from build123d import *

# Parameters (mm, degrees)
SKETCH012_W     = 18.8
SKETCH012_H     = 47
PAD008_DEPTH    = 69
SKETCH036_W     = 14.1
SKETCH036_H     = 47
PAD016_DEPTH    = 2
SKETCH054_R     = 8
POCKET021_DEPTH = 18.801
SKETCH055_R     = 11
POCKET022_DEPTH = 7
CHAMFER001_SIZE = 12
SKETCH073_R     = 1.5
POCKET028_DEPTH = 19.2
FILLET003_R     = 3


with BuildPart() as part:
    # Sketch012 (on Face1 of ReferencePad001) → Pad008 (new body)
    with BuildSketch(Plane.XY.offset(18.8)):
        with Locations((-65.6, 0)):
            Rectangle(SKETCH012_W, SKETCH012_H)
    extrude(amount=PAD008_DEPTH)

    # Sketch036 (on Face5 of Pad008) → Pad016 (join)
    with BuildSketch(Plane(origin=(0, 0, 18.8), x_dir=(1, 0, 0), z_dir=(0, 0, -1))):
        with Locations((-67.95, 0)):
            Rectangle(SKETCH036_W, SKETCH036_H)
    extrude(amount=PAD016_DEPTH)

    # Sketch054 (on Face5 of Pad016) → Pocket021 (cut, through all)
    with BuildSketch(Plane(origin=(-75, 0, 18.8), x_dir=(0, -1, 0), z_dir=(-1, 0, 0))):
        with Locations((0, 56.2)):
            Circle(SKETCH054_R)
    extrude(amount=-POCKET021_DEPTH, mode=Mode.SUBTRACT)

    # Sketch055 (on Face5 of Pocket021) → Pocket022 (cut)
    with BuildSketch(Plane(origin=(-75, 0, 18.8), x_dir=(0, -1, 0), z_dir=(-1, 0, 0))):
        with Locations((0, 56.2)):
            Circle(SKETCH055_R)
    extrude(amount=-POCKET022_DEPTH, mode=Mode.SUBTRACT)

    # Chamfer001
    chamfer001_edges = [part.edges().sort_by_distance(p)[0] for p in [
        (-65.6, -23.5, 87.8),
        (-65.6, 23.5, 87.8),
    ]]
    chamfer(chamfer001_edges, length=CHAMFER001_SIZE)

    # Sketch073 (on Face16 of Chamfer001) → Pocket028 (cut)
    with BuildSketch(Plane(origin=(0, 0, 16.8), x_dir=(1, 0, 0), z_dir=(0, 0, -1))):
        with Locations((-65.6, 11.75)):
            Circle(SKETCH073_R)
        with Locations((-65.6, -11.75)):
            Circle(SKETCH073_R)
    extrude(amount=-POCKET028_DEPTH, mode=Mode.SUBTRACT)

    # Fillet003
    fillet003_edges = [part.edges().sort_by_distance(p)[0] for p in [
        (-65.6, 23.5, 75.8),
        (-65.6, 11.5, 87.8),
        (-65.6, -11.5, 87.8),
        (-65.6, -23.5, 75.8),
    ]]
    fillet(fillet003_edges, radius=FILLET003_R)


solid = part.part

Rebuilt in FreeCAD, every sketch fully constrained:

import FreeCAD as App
import Part
import Sketcher

V = App.Vector


def edges_at(feature, points):
    """Names of the edges that pass closest to the given points."""
    edges = feature.Shape.Edges
    near = lambda p: min(range(len(edges)), key=lambda i: edges[i].distToShape(Part.Vertex(*p))[0])
    return sorted({f"Edge{near(p) + 1}" for p in points})

doc = App.newDocument("Part")
body = doc.addObject("PartDesign::Body", "Body")

# Sketch on XY plane
sketch1 = body.newObject("Sketcher::SketchObject", "Sketch")
sketch1.AttachmentSupport = (doc.getObject("XY_Plane"), [""])
sketch1.MapMode = "FlatFace"
sketch1.AttachmentOffset = App.Placement(V(0, 0, 18.8), App.Rotation())
sketch1.addGeometry([
    Part.LineSegment(V(-75, 23.5, 0), V(-75, -23.5, 0)),
    Part.LineSegment(V(-75, -23.5, 0), V(-56.2, -23.5, 0)),
    Part.LineSegment(V(-56.2, -23.5, 0), V(-56.2, 23.5, 0)),
    Part.LineSegment(V(-56.2, 23.5, 0), V(-75, 23.5, 0)),
], False)
sketch1.addConstraint([
    Sketcher.Constraint("Coincident", 0, 2, 1, 1),
    Sketcher.Constraint("Coincident", 1, 2, 2, 1),
    Sketcher.Constraint("Coincident", 2, 2, 3, 1),
    Sketcher.Constraint("Coincident", 3, 2, 0, 1),
    Sketcher.Constraint("Vertical", 0),
    Sketcher.Constraint("Horizontal", 1),
    Sketcher.Constraint("Vertical", 2),
    Sketcher.Constraint("Horizontal", 3),
    Sketcher.Constraint("DistanceY", 0, 2, 0, 1, 47.0),
    Sketcher.Constraint("DistanceX", 1, 1, 1, 2, 18.8),
    Sketcher.Constraint("DistanceX", 0, 2, -1, 1, 75.0),
    Sketcher.Constraint("DistanceY", 0, 2, -1, 1, 23.5),
])
pad1 = body.newObject("PartDesign::Pad", "Pad")
pad1.Profile = sketch1
pad1.Length = 69

# Sketch on XY plane
sketch2 = body.newObject("Sketcher::SketchObject", "Sketch001")
sketch2.AttachmentSupport = (doc.getObject("XY_Plane"), [""])
sketch2.MapMode = "FlatFace"
sketch2.AttachmentOffset = App.Placement(V(0, 0, 18.8), App.Rotation())
sketch2.addGeometry([
    Part.LineSegment(V(-75, -23.5, 0), V(-75, 23.5, 0)),
    Part.LineSegment(V(-75, 23.5, 0), V(-60.9, 23.5, 0)),
    Part.LineSegment(V(-60.9, 23.5, 0), V(-60.9, -23.5, 0)),
    Part.LineSegment(V(-60.9, -23.5, 0), V(-75, -23.5, 0)),
], False)
sketch2.addConstraint([
    Sketcher.Constraint("Coincident", 0, 2, 1, 1),
    Sketcher.Constraint("Coincident", 1, 2, 2, 1),
    Sketcher.Constraint("Coincident", 2, 2, 3, 1),
    Sketcher.Constraint("Coincident", 3, 2, 0, 1),
    Sketcher.Constraint("Vertical", 0),
    Sketcher.Constraint("Horizontal", 1),
    Sketcher.Constraint("Vertical", 2),
    Sketcher.Constraint("Horizontal", 3),
    Sketcher.Constraint("DistanceY", 0, 1, 0, 2, 47.0),
    Sketcher.Constraint("DistanceX", 1, 1, 1, 2, 14.1),
    Sketcher.Constraint("DistanceX", 0, 2, -1, 1, 75.0),
    Sketcher.Constraint("DistanceY", -1, 1, 0, 2, 23.5),
])
pad2 = body.newObject("PartDesign::Pad", "Pad001")
pad2.Profile = sketch2
pad2.Length = 2
pad2.Reversed = True

# Sketch on YZ plane
sketch3 = body.newObject("Sketcher::SketchObject", "Sketch002")
sketch3.AttachmentSupport = (doc.getObject("YZ_Plane"), [""])
sketch3.MapMode = "FlatFace"
sketch3.AttachmentOffset = App.Placement(V(0, 0, -75), App.Rotation())
sketch3.addGeometry(Part.Circle(V(0, 75, 0), V(0, 0, 1), 8), False)
sketch3.addConstraint([
    Sketcher.Constraint("PointOnObject", 0, 3, -2),
    Sketcher.Constraint("Diameter", 0, 16.0),
    Sketcher.Constraint("DistanceY", -1, 1, 0, 3, 75.0),
])
pocket1 = body.newObject("PartDesign::Pocket", "Pocket")
pocket1.Profile = sketch3
pocket1.Type = "ThroughAll"
pocket1.Reversed = True

# Sketch on YZ plane
sketch4 = body.newObject("Sketcher::SketchObject", "Sketch003")
sketch4.AttachmentSupport = (doc.getObject("YZ_Plane"), [""])
sketch4.MapMode = "FlatFace"
sketch4.AttachmentOffset = App.Placement(V(0, 0, -75), App.Rotation())
sketch4.addGeometry(Part.Circle(V(0, 75, 0), V(0, 0, 1), 11), False)
sketch4.addConstraint([
    Sketcher.Constraint("PointOnObject", 0, 3, -2),
    Sketcher.Constraint("Diameter", 0, 22.0),
    Sketcher.Constraint("DistanceY", -1, 1, 0, 3, 75.0),
])
pocket2 = body.newObject("PartDesign::Pocket", "Pocket001")
pocket2.Profile = sketch4
pocket2.Length = 7
pocket2.Reversed = True
doc.recompute()

chamfer = body.newObject("PartDesign::Chamfer", "Chamfer")
chamfer.Base = (pocket2, edges_at(pocket2, [(-65.6, -23.5, 87.8), (-65.6, 23.5, 87.8)]))
chamfer.Size = 12

# Sketch on XY plane
sketch5 = body.newObject("Sketcher::SketchObject", "Sketch004")
sketch5.AttachmentSupport = (doc.getObject("XY_Plane"), [""])
sketch5.MapMode = "FlatFace"
sketch5.AttachmentOffset = App.Placement(V(0, 0, 16.8), App.Rotation())
sketch5.addGeometry([
    Part.Circle(V(-65.6, -11.75, 0), V(0, 0, 1), 1.5),
    Part.Circle(V(-65.6, 11.75, 0), V(0, 0, 1), 1.5),
], False)
sketch5.addConstraint([
    Sketcher.Constraint("Equal", 0, 1),
    Sketcher.Constraint("Symmetric", 0, 3, 1, 3, -1),
    Sketcher.Constraint("Diameter", 0, 3.0),
    Sketcher.Constraint("DistanceX", 0, 3, -1, 1, 65.6),
    Sketcher.Constraint("DistanceY", 0, 3, 1, 3, 23.5),
])
pocket3 = body.newObject("PartDesign::Pocket", "Pocket002")
pocket3.Profile = sketch5
pocket3.Length = 19.2
pocket3.Reversed = True
doc.recompute()

fillet = body.newObject("PartDesign::Fillet", "Fillet")
fillet.Base = (pocket3, edges_at(pocket3, [
    (-65.6, 23.5, 75.8),
    (-65.6, 11.5, 87.8),
    (-65.6, -11.5, 87.8),
    (-65.6, -23.5, 75.8),
]))
fillet.Radius = 3

doc.recompute()
